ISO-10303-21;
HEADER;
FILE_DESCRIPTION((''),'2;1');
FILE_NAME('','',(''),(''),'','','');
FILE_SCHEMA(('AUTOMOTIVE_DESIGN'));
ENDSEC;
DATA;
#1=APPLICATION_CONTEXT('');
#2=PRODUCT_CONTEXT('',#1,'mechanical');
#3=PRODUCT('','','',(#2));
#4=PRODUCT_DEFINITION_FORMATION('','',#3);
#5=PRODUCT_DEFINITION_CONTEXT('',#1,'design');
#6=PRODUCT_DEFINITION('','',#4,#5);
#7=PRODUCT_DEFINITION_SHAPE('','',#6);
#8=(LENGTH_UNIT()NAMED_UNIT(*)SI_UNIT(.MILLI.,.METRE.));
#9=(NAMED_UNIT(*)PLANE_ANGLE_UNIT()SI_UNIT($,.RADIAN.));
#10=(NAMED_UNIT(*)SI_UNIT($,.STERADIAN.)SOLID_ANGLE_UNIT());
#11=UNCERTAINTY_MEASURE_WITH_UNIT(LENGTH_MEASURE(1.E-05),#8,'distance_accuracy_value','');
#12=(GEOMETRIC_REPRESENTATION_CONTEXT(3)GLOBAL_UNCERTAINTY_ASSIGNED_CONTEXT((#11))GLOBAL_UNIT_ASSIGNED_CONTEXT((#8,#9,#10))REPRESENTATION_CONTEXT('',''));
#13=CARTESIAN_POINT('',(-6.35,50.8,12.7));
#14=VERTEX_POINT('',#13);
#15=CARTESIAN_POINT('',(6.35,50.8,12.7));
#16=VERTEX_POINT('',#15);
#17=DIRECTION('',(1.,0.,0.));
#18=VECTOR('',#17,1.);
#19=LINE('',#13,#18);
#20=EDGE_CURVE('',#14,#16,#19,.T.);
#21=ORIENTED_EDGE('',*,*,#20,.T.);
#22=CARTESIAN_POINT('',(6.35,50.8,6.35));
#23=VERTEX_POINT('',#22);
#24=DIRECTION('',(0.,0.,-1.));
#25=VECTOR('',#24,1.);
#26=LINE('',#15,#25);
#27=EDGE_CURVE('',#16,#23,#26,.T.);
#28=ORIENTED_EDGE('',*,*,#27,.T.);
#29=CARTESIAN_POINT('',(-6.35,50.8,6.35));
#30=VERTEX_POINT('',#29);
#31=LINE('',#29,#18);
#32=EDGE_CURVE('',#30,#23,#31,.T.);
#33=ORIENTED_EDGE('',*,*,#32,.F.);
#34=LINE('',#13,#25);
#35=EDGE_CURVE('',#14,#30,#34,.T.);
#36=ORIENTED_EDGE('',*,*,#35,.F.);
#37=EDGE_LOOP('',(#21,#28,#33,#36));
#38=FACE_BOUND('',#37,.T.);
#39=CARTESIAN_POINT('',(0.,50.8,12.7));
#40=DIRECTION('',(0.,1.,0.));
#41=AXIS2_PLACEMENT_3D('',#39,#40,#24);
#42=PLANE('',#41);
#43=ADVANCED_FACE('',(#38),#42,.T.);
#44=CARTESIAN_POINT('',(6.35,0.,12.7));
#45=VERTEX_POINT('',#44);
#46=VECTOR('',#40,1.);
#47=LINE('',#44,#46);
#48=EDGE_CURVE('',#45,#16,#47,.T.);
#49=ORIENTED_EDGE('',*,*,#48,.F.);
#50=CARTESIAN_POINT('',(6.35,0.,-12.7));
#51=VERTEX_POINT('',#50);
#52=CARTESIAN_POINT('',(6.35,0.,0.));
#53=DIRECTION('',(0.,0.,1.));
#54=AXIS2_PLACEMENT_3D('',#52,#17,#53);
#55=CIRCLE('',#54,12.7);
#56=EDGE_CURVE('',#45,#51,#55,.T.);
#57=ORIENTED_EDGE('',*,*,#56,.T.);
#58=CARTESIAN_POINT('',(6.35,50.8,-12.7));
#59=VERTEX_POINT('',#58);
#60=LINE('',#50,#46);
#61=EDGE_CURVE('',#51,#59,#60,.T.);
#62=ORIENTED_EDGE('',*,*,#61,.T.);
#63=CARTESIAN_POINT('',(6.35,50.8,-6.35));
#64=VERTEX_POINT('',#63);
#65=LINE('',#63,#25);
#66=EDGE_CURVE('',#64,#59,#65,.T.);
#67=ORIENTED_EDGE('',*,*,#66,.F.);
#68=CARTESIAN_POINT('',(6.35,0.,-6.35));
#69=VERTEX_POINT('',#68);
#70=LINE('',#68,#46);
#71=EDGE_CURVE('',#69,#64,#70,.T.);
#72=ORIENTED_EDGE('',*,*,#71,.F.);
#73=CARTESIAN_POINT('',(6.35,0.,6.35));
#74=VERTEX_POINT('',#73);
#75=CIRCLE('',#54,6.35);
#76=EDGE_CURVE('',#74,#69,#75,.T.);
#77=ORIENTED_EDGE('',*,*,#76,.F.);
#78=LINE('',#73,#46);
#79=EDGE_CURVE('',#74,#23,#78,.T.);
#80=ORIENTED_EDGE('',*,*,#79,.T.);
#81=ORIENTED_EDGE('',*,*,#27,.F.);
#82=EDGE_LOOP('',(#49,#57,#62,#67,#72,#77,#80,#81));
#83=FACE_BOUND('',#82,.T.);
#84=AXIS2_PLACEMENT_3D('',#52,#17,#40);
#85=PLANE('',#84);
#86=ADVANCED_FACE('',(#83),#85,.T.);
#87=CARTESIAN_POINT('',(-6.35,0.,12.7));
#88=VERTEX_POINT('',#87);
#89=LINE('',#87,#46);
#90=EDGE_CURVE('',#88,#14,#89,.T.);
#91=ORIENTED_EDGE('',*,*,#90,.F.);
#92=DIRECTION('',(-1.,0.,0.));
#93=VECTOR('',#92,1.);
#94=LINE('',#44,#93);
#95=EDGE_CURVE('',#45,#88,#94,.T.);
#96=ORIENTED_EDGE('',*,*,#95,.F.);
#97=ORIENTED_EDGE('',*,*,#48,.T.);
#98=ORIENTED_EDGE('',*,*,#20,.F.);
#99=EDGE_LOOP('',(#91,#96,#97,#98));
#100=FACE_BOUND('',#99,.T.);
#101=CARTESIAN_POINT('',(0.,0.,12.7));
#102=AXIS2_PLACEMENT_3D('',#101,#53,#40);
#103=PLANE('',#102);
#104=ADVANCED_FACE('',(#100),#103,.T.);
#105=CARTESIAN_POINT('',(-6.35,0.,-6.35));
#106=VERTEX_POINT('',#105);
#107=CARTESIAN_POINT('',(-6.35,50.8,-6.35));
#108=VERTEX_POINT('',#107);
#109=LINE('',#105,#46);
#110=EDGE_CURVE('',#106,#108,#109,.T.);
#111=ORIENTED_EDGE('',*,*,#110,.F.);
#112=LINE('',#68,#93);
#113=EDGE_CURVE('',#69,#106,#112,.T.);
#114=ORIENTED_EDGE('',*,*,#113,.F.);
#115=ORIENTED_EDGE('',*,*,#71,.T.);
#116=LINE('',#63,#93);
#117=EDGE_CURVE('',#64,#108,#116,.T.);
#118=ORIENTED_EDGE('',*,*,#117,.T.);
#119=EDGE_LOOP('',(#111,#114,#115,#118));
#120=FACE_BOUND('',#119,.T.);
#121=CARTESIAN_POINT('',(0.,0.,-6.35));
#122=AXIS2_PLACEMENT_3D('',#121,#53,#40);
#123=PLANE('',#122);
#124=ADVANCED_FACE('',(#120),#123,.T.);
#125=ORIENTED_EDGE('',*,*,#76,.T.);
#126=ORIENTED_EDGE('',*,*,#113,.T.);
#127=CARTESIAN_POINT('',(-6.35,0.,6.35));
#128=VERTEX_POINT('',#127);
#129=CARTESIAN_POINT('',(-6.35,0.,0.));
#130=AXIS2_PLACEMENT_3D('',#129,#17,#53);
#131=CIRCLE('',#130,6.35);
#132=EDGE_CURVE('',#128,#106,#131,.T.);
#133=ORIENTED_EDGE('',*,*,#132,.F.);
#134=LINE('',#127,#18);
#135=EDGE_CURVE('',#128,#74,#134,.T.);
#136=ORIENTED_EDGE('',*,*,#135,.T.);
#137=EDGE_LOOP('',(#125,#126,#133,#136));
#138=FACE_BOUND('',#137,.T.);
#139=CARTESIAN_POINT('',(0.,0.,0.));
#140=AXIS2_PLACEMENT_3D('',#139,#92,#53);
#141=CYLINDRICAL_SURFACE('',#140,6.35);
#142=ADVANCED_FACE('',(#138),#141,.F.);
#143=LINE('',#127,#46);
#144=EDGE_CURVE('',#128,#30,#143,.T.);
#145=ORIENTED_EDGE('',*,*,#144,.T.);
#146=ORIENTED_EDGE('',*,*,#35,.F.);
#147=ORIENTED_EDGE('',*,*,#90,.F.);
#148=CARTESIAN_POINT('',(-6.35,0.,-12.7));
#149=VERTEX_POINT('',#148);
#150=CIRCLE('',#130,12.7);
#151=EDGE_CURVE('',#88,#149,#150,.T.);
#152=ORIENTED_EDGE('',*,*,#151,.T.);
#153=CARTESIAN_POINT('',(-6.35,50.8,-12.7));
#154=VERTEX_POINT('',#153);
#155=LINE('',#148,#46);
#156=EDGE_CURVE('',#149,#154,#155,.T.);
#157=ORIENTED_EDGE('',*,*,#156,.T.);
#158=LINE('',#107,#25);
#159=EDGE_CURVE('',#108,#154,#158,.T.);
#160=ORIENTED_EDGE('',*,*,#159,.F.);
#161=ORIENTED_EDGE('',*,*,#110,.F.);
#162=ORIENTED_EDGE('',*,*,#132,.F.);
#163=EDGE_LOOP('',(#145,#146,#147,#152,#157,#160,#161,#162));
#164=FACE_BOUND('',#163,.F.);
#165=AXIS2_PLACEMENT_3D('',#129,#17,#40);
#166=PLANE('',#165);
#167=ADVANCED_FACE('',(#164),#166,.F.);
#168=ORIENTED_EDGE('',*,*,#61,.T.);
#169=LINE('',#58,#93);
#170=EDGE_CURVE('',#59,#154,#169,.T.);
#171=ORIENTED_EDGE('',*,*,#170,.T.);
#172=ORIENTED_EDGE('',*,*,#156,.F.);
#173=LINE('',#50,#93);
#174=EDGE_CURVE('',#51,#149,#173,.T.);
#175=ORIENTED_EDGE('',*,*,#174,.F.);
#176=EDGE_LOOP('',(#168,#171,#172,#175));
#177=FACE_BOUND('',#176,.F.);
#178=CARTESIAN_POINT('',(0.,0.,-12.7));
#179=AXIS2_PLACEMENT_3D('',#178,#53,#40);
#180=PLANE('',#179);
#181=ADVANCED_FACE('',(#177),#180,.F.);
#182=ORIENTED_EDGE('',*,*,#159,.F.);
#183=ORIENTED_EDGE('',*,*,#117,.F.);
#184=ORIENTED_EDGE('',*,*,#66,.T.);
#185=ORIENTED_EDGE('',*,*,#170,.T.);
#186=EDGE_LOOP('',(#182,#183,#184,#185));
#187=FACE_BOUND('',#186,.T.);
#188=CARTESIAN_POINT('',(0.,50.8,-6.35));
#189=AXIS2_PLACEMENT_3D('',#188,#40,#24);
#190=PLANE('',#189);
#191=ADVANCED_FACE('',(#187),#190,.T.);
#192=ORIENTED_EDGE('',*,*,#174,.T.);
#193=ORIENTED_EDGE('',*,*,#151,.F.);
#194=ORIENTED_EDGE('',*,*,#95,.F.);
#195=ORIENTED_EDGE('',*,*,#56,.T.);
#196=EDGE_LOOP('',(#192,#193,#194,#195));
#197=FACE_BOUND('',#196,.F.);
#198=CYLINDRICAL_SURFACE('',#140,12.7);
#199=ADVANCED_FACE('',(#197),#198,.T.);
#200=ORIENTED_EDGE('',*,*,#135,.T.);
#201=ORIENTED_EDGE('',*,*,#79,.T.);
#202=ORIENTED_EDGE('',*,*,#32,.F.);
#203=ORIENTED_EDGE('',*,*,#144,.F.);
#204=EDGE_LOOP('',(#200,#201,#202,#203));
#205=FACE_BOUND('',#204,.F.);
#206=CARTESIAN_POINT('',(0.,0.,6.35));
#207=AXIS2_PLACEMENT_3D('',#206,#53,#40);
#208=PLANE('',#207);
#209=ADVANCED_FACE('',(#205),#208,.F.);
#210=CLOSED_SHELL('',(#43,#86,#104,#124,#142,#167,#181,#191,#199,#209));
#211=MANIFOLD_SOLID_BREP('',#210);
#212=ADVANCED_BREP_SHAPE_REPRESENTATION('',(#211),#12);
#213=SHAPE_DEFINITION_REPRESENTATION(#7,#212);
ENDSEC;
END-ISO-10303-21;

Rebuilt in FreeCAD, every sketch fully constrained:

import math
import FreeCAD as App
import Part
import Sketcher
Q = App.Units.Quantity

doc = App.newDocument("Part")
body = doc.addObject("PartDesign::Body", "Body")

sketch1 = body.newObject("Sketcher::SketchObject", "Sketch")
sketch1.AttachmentSupport = (doc.getObject("YZ_Plane"), [""])
sketch1.MapMode = "FlatFace"
sketch1.addGeometry([
    Part.ArcOfCircle(Part.Circle(App.Vector(0, 0, 0), App.Vector(0, 0, 1), 6), math.radians(90), math.radians(270)),
    Part.LineSegment(App.Vector(0, 6, 0), App.Vector(51, 6, 0)),
    Part.LineSegment(App.Vector(51, 6, 0), App.Vector(51, 13, 0)),
    Part.LineSegment(App.Vector(51, 13, 0), App.Vector(0, 13, 0)),
    Part.ArcOfCircle(Part.Circle(App.Vector(0, 0, 0), App.Vector(0, 0, 1), 13), math.radians(90), math.radians(270)),
    Part.LineSegment(App.Vector(0, -13, 0), App.Vector(51, -13, 0)),
    Part.LineSegment(App.Vector(51, -13, 0), App.Vector(51, -6, 0)),
    Part.LineSegment(App.Vector(51, -6, 0), App.Vector(0, -6, 0)),
], False)
sketch1.addConstraint([
    Sketcher.Constraint("Tangent", 0, 1, 1, 1),
    Sketcher.Constraint("Coincident", 1, 2, 2, 1),
    Sketcher.Constraint("Coincident", 2, 2, 3, 1),
    Sketcher.Constraint("Tangent", 3, 2, 4, 1),
    Sketcher.Constraint("Tangent", 4, 2, 5, 1),
    Sketcher.Constraint("Coincident", 5, 2, 6, 1),
    Sketcher.Constraint("Coincident", 6, 2, 7, 1),
    Sketcher.Constraint("Tangent", 7, 2, 0, 2),
    Sketcher.Constraint("Horizontal", 1),
    Sketcher.Constraint("Vertical", 2),
    Sketcher.Constraint("Horizontal", 3),
    Sketcher.Constraint("Horizontal", 5),
    Sketcher.Constraint("Vertical", 6),
    Sketcher.Constraint("Horizontal", 7),
    Sketcher.Constraint("Coincident", 0, 3, -1, 1),
    Sketcher.Constraint("Coincident", 4, 3, -1, 1),
    Sketcher.Constraint("Vertical", 2, 2, 5, 2),
    Sketcher.Constraint("Radius", 4, Q("0.5 in")),
    Sketcher.Constraint("DistanceX", 1, 1, 1, 2, Q("2 in")),
    Sketcher.Constraint("Radius", 0, Q("0.25 in")),
])
pad1 = body.newObject("PartDesign::Pad", "Pad")
pad1.Profile = sketch1
pad1.Length = Q("0.5 in")
pad1.Midplane = True

doc.recompute()
